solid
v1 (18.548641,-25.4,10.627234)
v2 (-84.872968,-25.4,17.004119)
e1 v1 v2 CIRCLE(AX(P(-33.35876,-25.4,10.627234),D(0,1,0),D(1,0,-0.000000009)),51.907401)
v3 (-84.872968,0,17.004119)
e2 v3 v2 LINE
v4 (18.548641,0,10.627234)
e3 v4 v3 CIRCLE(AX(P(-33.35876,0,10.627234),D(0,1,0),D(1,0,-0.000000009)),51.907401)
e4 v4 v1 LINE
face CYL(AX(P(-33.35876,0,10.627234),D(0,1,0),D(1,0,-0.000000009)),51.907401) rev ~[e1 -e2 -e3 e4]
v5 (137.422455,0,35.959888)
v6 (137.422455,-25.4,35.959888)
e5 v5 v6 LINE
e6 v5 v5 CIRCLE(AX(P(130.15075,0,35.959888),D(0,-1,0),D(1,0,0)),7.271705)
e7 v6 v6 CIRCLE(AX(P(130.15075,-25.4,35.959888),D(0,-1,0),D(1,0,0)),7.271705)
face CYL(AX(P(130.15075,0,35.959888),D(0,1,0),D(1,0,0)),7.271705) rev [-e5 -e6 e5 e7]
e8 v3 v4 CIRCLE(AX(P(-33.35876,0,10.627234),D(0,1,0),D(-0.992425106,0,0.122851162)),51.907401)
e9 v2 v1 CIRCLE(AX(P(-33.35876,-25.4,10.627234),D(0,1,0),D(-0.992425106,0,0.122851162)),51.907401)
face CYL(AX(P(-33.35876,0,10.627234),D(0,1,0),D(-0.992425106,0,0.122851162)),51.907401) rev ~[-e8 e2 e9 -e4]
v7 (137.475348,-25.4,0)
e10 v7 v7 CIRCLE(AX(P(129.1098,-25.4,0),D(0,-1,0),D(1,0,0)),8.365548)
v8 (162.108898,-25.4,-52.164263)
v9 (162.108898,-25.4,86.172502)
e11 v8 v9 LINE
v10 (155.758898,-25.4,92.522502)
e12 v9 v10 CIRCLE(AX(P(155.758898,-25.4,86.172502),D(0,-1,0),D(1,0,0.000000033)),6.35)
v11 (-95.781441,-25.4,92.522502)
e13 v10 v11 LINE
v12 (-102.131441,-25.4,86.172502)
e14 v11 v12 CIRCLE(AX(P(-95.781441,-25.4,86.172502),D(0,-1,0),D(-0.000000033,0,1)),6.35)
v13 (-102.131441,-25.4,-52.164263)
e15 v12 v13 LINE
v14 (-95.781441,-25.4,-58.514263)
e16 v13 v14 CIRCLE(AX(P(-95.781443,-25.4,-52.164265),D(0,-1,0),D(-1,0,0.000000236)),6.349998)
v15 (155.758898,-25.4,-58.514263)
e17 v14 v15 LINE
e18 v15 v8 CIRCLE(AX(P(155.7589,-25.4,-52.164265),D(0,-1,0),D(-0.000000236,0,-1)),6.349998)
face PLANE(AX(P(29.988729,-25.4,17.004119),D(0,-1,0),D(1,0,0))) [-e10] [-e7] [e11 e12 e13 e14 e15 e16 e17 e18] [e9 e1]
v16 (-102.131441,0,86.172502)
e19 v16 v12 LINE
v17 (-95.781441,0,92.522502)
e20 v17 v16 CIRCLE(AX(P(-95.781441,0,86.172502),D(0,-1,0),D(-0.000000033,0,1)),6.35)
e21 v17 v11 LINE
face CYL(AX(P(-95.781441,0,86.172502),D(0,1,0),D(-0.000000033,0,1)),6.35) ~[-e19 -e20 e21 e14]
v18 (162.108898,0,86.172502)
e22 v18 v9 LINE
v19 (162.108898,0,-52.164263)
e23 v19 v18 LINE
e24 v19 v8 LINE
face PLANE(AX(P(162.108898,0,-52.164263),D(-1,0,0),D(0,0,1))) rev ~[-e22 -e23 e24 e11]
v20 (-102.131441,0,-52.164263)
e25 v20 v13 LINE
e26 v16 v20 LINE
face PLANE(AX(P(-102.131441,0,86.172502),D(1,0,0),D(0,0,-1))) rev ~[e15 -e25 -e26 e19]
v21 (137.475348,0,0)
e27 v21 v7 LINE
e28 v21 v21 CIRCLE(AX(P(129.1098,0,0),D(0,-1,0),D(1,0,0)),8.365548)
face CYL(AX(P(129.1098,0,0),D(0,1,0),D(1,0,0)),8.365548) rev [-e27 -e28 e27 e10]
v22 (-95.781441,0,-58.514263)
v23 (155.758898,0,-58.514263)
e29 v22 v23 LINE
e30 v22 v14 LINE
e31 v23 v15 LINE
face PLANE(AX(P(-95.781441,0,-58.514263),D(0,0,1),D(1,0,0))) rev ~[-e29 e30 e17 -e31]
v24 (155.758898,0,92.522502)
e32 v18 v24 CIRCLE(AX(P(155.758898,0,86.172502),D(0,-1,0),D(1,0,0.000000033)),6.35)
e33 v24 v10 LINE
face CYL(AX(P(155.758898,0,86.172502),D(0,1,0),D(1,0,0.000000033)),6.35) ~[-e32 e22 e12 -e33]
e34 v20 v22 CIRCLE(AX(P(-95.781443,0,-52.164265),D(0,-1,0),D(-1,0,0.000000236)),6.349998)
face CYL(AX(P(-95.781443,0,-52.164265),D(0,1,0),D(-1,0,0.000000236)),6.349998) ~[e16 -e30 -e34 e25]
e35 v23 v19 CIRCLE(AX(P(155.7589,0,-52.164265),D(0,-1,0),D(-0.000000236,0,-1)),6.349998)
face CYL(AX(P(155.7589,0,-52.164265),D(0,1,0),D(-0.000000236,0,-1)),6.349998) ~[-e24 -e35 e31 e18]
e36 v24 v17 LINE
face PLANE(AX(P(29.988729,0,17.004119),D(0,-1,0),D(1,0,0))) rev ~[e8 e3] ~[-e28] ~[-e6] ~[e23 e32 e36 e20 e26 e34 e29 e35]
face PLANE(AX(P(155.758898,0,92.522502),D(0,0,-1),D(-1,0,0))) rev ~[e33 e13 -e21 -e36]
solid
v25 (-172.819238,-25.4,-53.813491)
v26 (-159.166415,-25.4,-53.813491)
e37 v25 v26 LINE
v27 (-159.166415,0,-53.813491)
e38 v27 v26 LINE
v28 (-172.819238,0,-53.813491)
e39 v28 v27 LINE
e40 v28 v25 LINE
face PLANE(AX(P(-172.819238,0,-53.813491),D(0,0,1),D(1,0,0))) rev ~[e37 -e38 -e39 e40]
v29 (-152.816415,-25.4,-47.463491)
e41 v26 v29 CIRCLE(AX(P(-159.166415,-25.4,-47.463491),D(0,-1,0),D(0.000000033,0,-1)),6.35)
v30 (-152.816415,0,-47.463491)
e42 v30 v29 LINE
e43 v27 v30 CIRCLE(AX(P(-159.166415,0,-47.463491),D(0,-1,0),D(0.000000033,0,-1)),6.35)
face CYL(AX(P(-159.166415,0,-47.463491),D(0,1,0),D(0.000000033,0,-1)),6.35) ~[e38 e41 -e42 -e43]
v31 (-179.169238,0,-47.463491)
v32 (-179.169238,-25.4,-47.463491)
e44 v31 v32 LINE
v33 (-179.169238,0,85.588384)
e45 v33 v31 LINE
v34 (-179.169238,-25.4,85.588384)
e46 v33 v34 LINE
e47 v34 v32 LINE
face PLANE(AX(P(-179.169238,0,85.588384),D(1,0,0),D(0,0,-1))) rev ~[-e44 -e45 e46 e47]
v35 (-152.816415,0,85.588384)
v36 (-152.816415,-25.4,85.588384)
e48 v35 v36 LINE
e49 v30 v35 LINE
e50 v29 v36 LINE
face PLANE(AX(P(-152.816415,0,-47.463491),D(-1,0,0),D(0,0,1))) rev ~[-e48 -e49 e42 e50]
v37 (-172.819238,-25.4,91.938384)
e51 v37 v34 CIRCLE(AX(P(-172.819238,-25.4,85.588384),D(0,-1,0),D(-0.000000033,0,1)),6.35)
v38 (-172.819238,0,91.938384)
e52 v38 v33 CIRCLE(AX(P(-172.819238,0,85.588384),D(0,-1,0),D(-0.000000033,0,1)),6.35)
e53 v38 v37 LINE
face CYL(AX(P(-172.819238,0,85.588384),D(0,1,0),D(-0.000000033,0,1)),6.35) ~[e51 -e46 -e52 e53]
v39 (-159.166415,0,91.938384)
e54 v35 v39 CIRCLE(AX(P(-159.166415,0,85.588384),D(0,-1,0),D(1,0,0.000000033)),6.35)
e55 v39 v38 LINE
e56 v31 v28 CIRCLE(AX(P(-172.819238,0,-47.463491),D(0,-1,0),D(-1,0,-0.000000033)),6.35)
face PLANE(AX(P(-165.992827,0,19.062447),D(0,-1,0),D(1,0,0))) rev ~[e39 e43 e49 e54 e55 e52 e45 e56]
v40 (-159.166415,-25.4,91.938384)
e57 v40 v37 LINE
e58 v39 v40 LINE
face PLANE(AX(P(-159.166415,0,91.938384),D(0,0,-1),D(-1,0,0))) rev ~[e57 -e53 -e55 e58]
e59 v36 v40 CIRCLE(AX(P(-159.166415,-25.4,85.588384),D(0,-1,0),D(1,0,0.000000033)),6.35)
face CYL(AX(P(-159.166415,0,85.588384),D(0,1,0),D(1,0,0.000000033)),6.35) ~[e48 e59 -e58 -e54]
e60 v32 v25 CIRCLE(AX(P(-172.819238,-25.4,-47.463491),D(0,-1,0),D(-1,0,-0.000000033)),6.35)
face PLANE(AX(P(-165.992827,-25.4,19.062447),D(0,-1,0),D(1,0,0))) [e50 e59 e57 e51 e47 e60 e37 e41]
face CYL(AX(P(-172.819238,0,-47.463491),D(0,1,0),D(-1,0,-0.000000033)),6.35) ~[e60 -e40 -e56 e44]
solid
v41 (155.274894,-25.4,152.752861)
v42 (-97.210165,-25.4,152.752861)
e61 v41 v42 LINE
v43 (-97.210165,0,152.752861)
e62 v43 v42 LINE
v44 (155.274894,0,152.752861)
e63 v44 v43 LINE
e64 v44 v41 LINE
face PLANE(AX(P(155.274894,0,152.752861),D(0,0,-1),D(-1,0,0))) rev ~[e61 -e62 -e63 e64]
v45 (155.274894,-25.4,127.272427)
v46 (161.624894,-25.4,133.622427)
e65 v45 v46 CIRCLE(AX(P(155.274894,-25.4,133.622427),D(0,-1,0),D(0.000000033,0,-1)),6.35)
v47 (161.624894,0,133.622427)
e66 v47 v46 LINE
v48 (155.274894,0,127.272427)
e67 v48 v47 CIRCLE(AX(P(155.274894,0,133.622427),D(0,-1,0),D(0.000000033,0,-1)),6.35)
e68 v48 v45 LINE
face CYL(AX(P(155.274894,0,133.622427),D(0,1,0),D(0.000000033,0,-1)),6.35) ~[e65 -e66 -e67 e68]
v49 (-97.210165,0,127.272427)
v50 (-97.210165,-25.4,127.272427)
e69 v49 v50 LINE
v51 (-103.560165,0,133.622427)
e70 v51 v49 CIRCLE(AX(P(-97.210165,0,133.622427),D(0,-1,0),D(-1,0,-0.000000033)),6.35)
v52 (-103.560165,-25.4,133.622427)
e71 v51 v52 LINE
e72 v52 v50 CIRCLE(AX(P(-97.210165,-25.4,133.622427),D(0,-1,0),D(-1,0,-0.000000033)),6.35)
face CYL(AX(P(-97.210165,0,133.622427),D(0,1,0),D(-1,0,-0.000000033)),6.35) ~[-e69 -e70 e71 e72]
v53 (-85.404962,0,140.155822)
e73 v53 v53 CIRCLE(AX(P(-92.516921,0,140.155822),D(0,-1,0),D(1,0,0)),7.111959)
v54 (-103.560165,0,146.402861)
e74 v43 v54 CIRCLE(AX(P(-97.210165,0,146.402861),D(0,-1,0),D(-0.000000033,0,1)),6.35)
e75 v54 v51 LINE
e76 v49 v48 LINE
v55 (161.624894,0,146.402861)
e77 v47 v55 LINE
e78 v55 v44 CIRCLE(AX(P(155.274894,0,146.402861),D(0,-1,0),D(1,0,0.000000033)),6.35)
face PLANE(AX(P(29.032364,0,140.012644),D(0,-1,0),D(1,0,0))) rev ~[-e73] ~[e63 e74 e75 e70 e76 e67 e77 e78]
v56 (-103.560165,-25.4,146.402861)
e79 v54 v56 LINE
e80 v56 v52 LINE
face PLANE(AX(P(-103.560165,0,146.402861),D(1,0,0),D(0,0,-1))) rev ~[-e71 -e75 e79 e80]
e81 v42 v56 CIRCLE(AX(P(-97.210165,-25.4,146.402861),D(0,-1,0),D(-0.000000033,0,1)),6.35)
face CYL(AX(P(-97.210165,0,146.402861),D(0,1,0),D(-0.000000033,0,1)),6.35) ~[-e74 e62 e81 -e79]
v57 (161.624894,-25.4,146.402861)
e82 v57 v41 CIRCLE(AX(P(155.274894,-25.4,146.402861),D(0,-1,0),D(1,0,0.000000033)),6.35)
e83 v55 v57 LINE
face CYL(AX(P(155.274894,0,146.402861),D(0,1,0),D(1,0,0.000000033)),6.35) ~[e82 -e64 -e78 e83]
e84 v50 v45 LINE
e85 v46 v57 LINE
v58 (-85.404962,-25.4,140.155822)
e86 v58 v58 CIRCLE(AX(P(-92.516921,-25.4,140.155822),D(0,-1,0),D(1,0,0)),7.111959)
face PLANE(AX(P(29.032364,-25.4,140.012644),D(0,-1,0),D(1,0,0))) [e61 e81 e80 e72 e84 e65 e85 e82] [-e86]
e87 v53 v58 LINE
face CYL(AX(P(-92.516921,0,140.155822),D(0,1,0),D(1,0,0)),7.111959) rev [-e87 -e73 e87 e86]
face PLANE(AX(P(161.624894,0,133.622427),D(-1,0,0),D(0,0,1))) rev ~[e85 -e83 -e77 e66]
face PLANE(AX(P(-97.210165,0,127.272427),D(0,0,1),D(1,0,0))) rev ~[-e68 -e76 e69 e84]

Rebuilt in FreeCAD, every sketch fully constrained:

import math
import FreeCAD as App
import Part
import Sketcher
from FreeCAD import Vector
Q = App.Units.Quantity

doc = App.newDocument("Part")
body = doc.addObject("PartDesign::Body", "Body")
body.AllowCompound = True

# Sketch on XZ plane
sketch1 = body.newObject("Sketcher::SketchObject", "Sketch")
sketch1.AttachmentSupport = (doc.getObject("XZ_Plane"), [""])
sketch1.MapMode = "FlatFace"
sketch1.addGeometry(Part.ArcOfCircle(Part.Circle(Vector(-96, -52, 0), Vector(0, 0, 1), 6), math.radians(180), math.radians(270)), False)
sketch1.addGeometry(Part.LineSegment(Vector(-96, -59, 0), Vector(156, -59, 0)), False)
sketch1.addGeometry(Part.ArcOfCircle(Part.Circle(Vector(156, -52, 0), Vector(0, 0, 1), 6), math.radians(-90), math.radians(0)), False)
sketch1.addGeometry(Part.LineSegment(Vector(162, -52, 0), Vector(162, 86, 0)), False)
sketch1.addGeometry(Part.ArcOfCircle(Part.Circle(Vector(156, 86, 0), Vector(0, 0, 1), 6), math.radians(0), math.radians(90)), False)
sketch1.addGeometry(Part.LineSegment(Vector(156, 93, 0), Vector(-96, 93, 0)), False)
sketch1.addGeometry(Part.ArcOfCircle(Part.Circle(Vector(-96, 86, 0), Vector(0, 0, 1), 6), math.radians(90), math.radians(180)), False)
sketch1.addGeometry(Part.LineSegment(Vector(-102, 86, 0), Vector(-102, -52, 0)), False)
sketch1.addGeometry(Part.Circle(Vector(129, 0, 0), Vector(0, 0, 1), 8), False)
sketch1.addGeometry(Part.ArcOfCircle(Part.Circle(Vector(-33, 11, 0), Vector(0, 0, 1), 52), math.radians(0), math.radians(173)), False)
sketch1.addGeometry(Part.ArcOfCircle(Part.Circle(Vector(-33, 11, 0), Vector(0, 0, 1), 52), math.radians(173), math.radians(360)), False)
sketch1.addGeometry(Part.Circle(Vector(130, 36, 0), Vector(0, 0, 1), 7), False)
sketch1.addGeometry(Part.ArcOfCircle(Part.Circle(Vector(-159, 86, 0), Vector(0, 0, 1), 6), math.radians(0), math.radians(90)), False)
sketch1.addGeometry(Part.LineSegment(Vector(-159, 92, 0), Vector(-173, 92, 0)), False)
sketch1.addGeometry(Part.ArcOfCircle(Part.Circle(Vector(-173, 86, 0), Vector(0, 0, 1), 6), math.radians(90), math.radians(180)), False)
sketch1.addGeometry(Part.LineSegment(Vector(-179, 86, 0), Vector(-179, -47, 0)), False)
sketch1.addGeometry(Part.ArcOfCircle(Part.Circle(Vector(-173, -47, 0), Vector(0, 0, 1), 6), math.radians(-180), math.radians(-90)), False)
sketch1.addGeometry(Part.LineSegment(Vector(-173, -54, 0), Vector(-159, -54, 0)), False)
sketch1.addGeometry(Part.ArcOfCircle(Part.Circle(Vector(-159, -47, 0), Vector(0, 0, 1), 6), math.radians(-90), math.radians(0)), False)
sketch1.addGeometry(Part.LineSegment(Vector(-153, -47, 0), Vector(-153, 86, 0)), False)
sketch1.addGeometry(Part.ArcOfCircle(Part.Circle(Vector(-97, 134, 0), Vector(0, 0, 1), 6), math.radians(-180), math.radians(-90)), False)
sketch1.addGeometry(Part.LineSegment(Vector(-97, 127, 0), Vector(155, 127, 0)), False)
sketch1.addGeometry(Part.ArcOfCircle(Part.Circle(Vector(155, 134, 0), Vector(0, 0, 1), 6), math.radians(-90), math.radians(0)), False)
sketch1.addGeometry(Part.LineSegment(Vector(162, 134, 0), Vector(162, 146, 0)), False)
sketch1.addGeometry(Part.ArcOfCircle(Part.Circle(Vector(155, 146, 0), Vector(0, 0, 1), 6), math.radians(0), math.radians(90)), False)
sketch1.addGeometry(Part.LineSegment(Vector(155, 153, 0), Vector(-97, 153, 0)), False)
sketch1.addGeometry(Part.ArcOfCircle(Part.Circle(Vector(-97, 146, 0), Vector(0, 0, 1), 6), math.radians(90), math.radians(180)), False)
sketch1.addGeometry(Part.LineSegment(Vector(-104, 146, 0), Vector(-104, 134, 0)), False)
sketch1.addGeometry(Part.Circle(Vector(-93, 140, 0), Vector(0, 0, 1), 7), False)
sketch1.addConstraint(Sketcher.Constraint("Tangent", 0, 2, 1, 1))
sketch1.addConstraint(Sketcher.Constraint("Tangent", 1, 2, 2, 1))
sketch1.addConstraint(Sketcher.Constraint("Tangent", 2, 2, 3, 1))
sketch1.addConstraint(Sketcher.Constraint("Tangent", 3, 2, 4, 1))
sketch1.addConstraint(Sketcher.Constraint("Tangent", 4, 2, 5, 1))
sketch1.addConstraint(Sketcher.Constraint("Tangent", 5, 2, 6, 1))
sketch1.addConstraint(Sketcher.Constraint("Tangent", 6, 2, 7, 1))
sketch1.addConstraint(Sketcher.Constraint("Tangent", 7, 2, 0, 1))
sketch1.addConstraint(Sketcher.Constraint("Tangent", 9, 1, 10, 2))
sketch1.addConstraint(Sketcher.Constraint("Coincident", 10, 1, 9, 2))
sketch1.addConstraint(Sketcher.Constraint("Tangent", 12, 2, 13, 1))
sketch1.addConstraint(Sketcher.Constraint("Tangent", 13, 2, 14, 1))
sketch1.addConstraint(Sketcher.Constraint("Tangent", 14, 2, 15, 1))
sketch1.addConstraint(Sketcher.Constraint("Tangent", 15, 2, 16, 1))
sketch1.addConstraint(Sketcher.Constraint("Tangent", 16, 2, 17, 1))
sketch1.addConstraint(Sketcher.Constraint("Tangent", 17, 2, 18, 1))
sketch1.addConstraint(Sketcher.Constraint("Tangent", 18, 2, 19, 1))
sketch1.addConstraint(Sketcher.Constraint("Tangent", 19, 2, 12, 1))
sketch1.addConstraint(Sketcher.Constraint("Tangent", 20, 2, 21, 1))
sketch1.addConstraint(Sketcher.Constraint("Tangent", 21, 2, 22, 1))
sketch1.addConstraint(Sketcher.Constraint("Tangent", 22, 2, 23, 1))
sketch1.addConstraint(Sketcher.Constraint("Tangent", 23, 2, 24, 1))
sketch1.addConstraint(Sketcher.Constraint("Tangent", 24, 2, 25, 1))
sketch1.addConstraint(Sketcher.Constraint("Tangent", 25, 2, 26, 1))
sketch1.addConstraint(Sketcher.Constraint("Tangent", 26, 2, 27, 1))
sketch1.addConstraint(Sketcher.Constraint("Tangent", 27, 2, 20, 1))
sketch1.addConstraint(Sketcher.Constraint("Horizontal", 1))
sketch1.addConstraint(Sketcher.Constraint("Vertical", 3))
sketch1.addConstraint(Sketcher.Constraint("Horizontal", 5))
sketch1.addConstraint(Sketcher.Constraint("Vertical", 7))
sketch1.addConstraint(Sketcher.Constraint("Horizontal", 13))
sketch1.addConstraint(Sketcher.Constraint("Vertical", 15))
sketch1.addConstraint(Sketcher.Constraint("Horizontal", 17))
sketch1.addConstraint(Sketcher.Constraint("Vertical", 19))
sketch1.addConstraint(Sketcher.Constraint("Horizontal", 21))
sketch1.addConstraint(Sketcher.Constraint("Vertical", 23))
sketch1.addConstraint(Sketcher.Constraint("Horizontal", 25))
sketch1.addConstraint(Sketcher.Constraint("Vertical", 27))
sketch1.addConstraint(Sketcher.Constraint("Equal", 0, 2))
sketch1.addConstraint(Sketcher.Constraint("Equal", 2, 4))
sketch1.addConstraint(Sketcher.Constraint("Equal", 4, 6))
sketch1.addConstraint(Sketcher.Constraint("Equal", 6, 12))
sketch1.addConstraint(Sketcher.Constraint("Equal", 12, 14))
sketch1.addConstraint(Sketcher.Constraint("Equal", 14, 16))
sketch1.addConstraint(Sketcher.Constraint("Equal", 16, 18))
sketch1.addConstraint(Sketcher.Constraint("Equal", 18, 20))
sketch1.addConstraint(Sketcher.Constraint("Equal", 20, 22))
sketch1.addConstraint(Sketcher.Constraint("Equal", 22, 24))
sketch1.addConstraint(Sketcher.Constraint("Equal", 24, 26))
sketch1.addConstraint(Sketcher.Constraint("PointOnObject", 8, 3, -1))
sketch1.addConstraint(Sketcher.Constraint("Horizontal", 10, 3, 9, 1))
sketch1.addConstraint(Sketcher.Constraint("Radius", 0, Q("0.2499999 in")))
sketch1.addConstraint(Sketcher.Constraint("Radius", 9, Q("51.907401 mm")))
sketch1.addConstraint(Sketcher.Constraint("Diameter", 11, Q("14.54341 mm")))
sketch1.addConstraint(Sketcher.Constraint("Diameter", 8, Q("16.731096 mm")))
sketch1.addConstraint(Sketcher.Constraint("Diameter", 28, Q("14.223918 mm")))
sketch1.addConstraint(Sketcher.Constraint("DistanceX", 9, 3, 8, 3, Q("6.3964 in")))
sketch1.addConstraint(Sketcher.Constraint("DistanceX", 1, 1, 1, 2, Q("251.540339 mm")))
sketch1.addConstraint(Sketcher.Constraint("DistanceX", 21, 1, 21, 2, Q("252.485059 mm")))
sketch1.addConstraint(Sketcher.Constraint("DistanceX", -1, 1, 2, 3, Q("155.7589 mm")))
sketch1.addConstraint(Sketcher.Constraint("DistanceY", -1, 1, 4, 3, Q("86.172502 mm")))
sketch1.addConstraint(Sketcher.Constraint("DistanceX", -1, 1, 8, 3, Q("129.1098 mm")))
sketch1.addConstraint(Sketcher.Constraint("DistanceY", 0, 3, 9, 3, Q("62.791499 mm")))
sketch1.addConstraint(Sketcher.Constraint("DistanceX", 13, 2, 13, 1, Q("13.652823 mm")))
sketch1.addConstraint(Sketcher.Constraint("DistanceY", 3, 1, 3, 2, Q("138.336765 mm")))
sketch1.addConstraint(Sketcher.Constraint("DistanceY", 15, 2, 15, 1, Q("133.051875 mm")))
sketch1.addConstraint(Sketcher.Constraint("DistanceY", 23, 1, 23, 2, Q("12.780434 mm")))
sketch1.addConstraint(Sketcher.Constraint("DistanceX", -1, 1, 11, 3, Q("130.15075 mm")))
sketch1.addConstraint(Sketcher.Constraint("DistanceY", 16, 3, -1, 1, Q("47.463491 mm")))
sketch1.addConstraint(Sketcher.Constraint("DistanceY", -1, 1, 24, 3, Q("146.402861 mm")))
sketch1.addConstraint(Sketcher.Constraint("DistanceX", 28, 3, -1, 1, Q("92.516921 mm")))
sketch1.addConstraint(Sketcher.Constraint("DistanceY", -1, 1, 28, 3, Q("140.155822 mm")))
sketch1.addConstraint(Sketcher.Constraint("DistanceX", 10, 1, -1, 1, Q("84.872968 mm")))
sketch1.addConstraint(Sketcher.Constraint("DistanceX", 13, 2, -1, 1, Q("172.819238 mm")))
sketch1.addConstraint(Sketcher.Constraint("DistanceX", 12, 3, 20, 3, Q("61.95625 mm")))
sketch1.addConstraint(Sketcher.Constraint("DistanceY", 11, 3, 22, 3, Q("97.662539 mm")))
pad1 = body.newObject("PartDesign::Pad", "Pad")
pad1.Profile = sketch1
pad1.Length = Q("1 in")

doc.recompute()
